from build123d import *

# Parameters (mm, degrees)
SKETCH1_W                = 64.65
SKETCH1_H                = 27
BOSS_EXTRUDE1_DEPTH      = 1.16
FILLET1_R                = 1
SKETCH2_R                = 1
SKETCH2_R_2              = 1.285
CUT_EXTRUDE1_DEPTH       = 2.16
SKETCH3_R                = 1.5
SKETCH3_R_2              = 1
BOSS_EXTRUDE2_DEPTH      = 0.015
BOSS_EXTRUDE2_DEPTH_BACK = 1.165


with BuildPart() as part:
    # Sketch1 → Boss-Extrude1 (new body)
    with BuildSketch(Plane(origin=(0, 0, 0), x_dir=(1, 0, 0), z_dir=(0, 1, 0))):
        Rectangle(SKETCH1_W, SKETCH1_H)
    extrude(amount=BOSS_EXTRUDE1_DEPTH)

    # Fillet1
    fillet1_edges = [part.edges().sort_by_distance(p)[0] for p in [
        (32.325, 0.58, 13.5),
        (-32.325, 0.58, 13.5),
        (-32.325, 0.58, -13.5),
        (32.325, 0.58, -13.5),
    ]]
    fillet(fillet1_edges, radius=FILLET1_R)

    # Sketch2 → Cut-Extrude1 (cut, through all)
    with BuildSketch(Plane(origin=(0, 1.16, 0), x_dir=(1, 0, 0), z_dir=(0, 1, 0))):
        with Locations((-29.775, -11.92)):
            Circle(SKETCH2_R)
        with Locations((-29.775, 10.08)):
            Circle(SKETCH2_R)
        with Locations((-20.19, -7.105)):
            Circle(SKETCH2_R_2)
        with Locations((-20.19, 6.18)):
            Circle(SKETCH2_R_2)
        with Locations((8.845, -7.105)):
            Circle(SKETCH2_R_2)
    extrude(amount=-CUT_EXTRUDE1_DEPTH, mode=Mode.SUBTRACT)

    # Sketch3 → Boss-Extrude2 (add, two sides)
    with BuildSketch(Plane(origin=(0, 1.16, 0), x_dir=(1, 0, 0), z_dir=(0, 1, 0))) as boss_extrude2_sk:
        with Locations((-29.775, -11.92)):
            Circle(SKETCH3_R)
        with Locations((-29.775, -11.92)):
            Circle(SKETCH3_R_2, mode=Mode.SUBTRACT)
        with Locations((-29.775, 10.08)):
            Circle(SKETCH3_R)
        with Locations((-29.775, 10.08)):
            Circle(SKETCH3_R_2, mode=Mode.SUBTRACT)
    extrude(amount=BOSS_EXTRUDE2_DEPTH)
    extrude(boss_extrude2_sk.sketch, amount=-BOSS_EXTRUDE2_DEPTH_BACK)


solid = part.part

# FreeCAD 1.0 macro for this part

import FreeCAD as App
import Part
import Sketcher
Q = App.Units.Quantity


def edges_at(feature, points):
    """Names of the edges that pass closest to the given points."""
    edges = feature.Shape.Edges
    near = lambda p: min(range(len(edges)), key=lambda i: edges[i].distToShape(Part.Vertex(*p))[0])
    return sorted({f"Edge{near(p) + 1}" for p in points})


def add_polygon(sketch, points):
    """Adds a closed chain of lines whose ends are joined by coincident constraints."""
    first, n = sketch.GeometryCount, len(points)
    for a, b in zip(points, points[1:] + points[:1]):
        sketch.addGeometry(Part.LineSegment(App.Vector(*a, 0), App.Vector(*b, 0)), False)
    for i in range(n):
        sketch.addConstraint(Sketcher.Constraint("Coincident", first + i, 2, first + (i + 1) % n, 1))

doc = App.newDocument("Part")
body = doc.addObject("PartDesign::Body", "Body")

# Sketch on XZ plane
sketch1 = body.newObject("Sketcher::SketchObject", "Sketch")
sketch1.AttachmentSupport = (doc.getObject("XZ_Plane"), [""])
sketch1.MapMode = "FlatFace"
add_polygon(sketch1, [(-32, -14), (-32, 14), (32, 14), (32, -14)])  # lines 0-3
sketch1.addConstraint([
    Sketcher.Constraint("Vertical", 0),
    Sketcher.Constraint("Horizontal", 1),
    Sketcher.Constraint("Vertical", 2),
    Sketcher.Constraint("Horizontal", 3),
    Sketcher.Constraint("Symmetric", 0, 2, 2, 2, -1, 1),
    Sketcher.Constraint("DistanceY", 0, 1, 0, 2, Q("27 mm")),
    Sketcher.Constraint("DistanceX", 1, 1, 1, 2, Q("64.65 mm")),
])
pad1 = body.newObject("PartDesign::Pad", "Pad")
pad1.Profile = sketch1
pad1.Length = 1.16
pad1.Reversed = True
doc.recompute()

fillet = body.newObject("PartDesign::Fillet", "Fillet")
fillet.Base = (pad1, edges_at(pad1, [
    (32.325, 0.58, 13.5),
    (-32.325, 0.58, 13.5),
    (-32.325, 0.58, -13.5),
    (32.325, 0.58, -13.5),
]))
fillet.Radius = 1

# Sketch on XZ plane
sketch2 = body.newObject("Sketcher::SketchObject", "Sketch001")
sketch2.AttachmentSupport = (doc.getObject("XZ_Plane"), [""])
sketch2.MapMode = "FlatFace"
sketch2.AttachmentOffset = App.Placement(App.Vector(0, 0, -1.16), App.Rotation())
sketch2.addGeometry([
    Part.Circle(App.Vector(-29.8, 11.9, 0), App.Vector(0, 0, 1), 1),  # 0
    Part.Circle(App.Vector(-29.8, -10.1, 0), App.Vector(0, 0, 1), 1),  # 1
    Part.Circle(App.Vector(-20.2, 7.1, 0), App.Vector(0, 0, 1), 1.3),  # 2
    Part.Circle(App.Vector(-20.2, -6.2, 0), App.Vector(0, 0, 1), 1.3),  # 3
    Part.Circle(App.Vector(8.8, 7.1, 0), App.Vector(0, 0, 1), 1.3),  # 4
], False)
sketch2.addConstraint([
    Sketcher.Constraint("Equal", 0, 1),
    Sketcher.Constraint("Equal", 2, 3),
    Sketcher.Constraint("Equal", 3, 4),
    Sketcher.Constraint("Horizontal", 2, 3, 4, 3),
    Sketcher.Constraint("Vertical", 0, 3, 1, 3),
    Sketcher.Constraint("Vertical", 2, 3, 3, 3),
    Sketcher.Constraint("Diameter", 0, Q("2 mm")),
    Sketcher.Constraint("Diameter", 2, Q("2.57 mm")),
    Sketcher.Constraint("DistanceY", 1, 3, 0, 3, Q("22 mm")),
    Sketcher.Constraint("DistanceY", 1, 3, 3, 3, Q("3.9 mm")),
    Sketcher.Constraint("DistanceY", -1, 1, 0, 3, Q("11.92 mm")),
    Sketcher.Constraint("DistanceX", 2, 3, -1, 1, Q("20.19 mm")),
    Sketcher.Constraint("DistanceX", 0, 3, 4, 3, Q("38.62 mm")),
    Sketcher.Constraint("DistanceX", 0, 3, -1, 1, Q("29.775 mm")),
    Sketcher.Constraint("DistanceY", -1, 1, 2, 3, Q("7.105 mm")),
])
pocket1 = body.newObject("PartDesign::Pocket", "Pocket")
pocket1.Profile = sketch2
pocket1.Type = "ThroughAll"
pocket1.Reversed = True

# Sketch on XZ plane
sketch3 = body.newObject("Sketcher::SketchObject", "Sketch002")
sketch3.AttachmentSupport = (doc.getObject("XZ_Plane"), [""])
sketch3.MapMode = "FlatFace"
sketch3.AttachmentOffset = App.Placement(App.Vector(0, 0, -1.16), App.Rotation())
sketch3.addGeometry([
    Part.Circle(App.Vector(-29.8, 11.9, 0), App.Vector(0, 0, 1), 1.5),
    Part.Circle(App.Vector(-29.8, 11.9, 0), App.Vector(0, 0, 1), 1),
    Part.Circle(App.Vector(-29.8, -10.1, 0), App.Vector(0, 0, 1), 1.5),
    Part.Circle(App.Vector(-29.8, -10.1, 0), App.Vector(0, 0, 1), 1),
], False)
sketch3.addConstraint([
    Sketcher.Constraint("Coincident", 1, 3, 0, 3),
    Sketcher.Constraint("Coincident", 3, 3, 2, 3),
    Sketcher.Constraint("Equal", 0, 2),
    Sketcher.Constraint("Equal", 1, 3),
    Sketcher.Constraint("Vertical", 1, 3, 2, 3),
    Sketcher.Constraint("Diameter", 0, Q("3 mm")),
    Sketcher.Constraint("Diameter", 1, Q("2 mm")),
    Sketcher.Constraint("DistanceY", 2, 3, 0, 3, Q("22 mm")),
    Sketcher.Constraint("DistanceY", -1, 1, 0, 3, Q("11.92 mm")),
    Sketcher.Constraint("DistanceX", 0, 3, -1, 1, Q("29.775 mm")),
])
pad2 = body.newObject("PartDesign::Pad", "Pad001")
pad2.Profile = sketch3
pad2.Type = "TwoLengths"
pad2.Length = 0.015
pad2.Length2 = 1.165
pad2.Reversed = True

doc.recompute()
